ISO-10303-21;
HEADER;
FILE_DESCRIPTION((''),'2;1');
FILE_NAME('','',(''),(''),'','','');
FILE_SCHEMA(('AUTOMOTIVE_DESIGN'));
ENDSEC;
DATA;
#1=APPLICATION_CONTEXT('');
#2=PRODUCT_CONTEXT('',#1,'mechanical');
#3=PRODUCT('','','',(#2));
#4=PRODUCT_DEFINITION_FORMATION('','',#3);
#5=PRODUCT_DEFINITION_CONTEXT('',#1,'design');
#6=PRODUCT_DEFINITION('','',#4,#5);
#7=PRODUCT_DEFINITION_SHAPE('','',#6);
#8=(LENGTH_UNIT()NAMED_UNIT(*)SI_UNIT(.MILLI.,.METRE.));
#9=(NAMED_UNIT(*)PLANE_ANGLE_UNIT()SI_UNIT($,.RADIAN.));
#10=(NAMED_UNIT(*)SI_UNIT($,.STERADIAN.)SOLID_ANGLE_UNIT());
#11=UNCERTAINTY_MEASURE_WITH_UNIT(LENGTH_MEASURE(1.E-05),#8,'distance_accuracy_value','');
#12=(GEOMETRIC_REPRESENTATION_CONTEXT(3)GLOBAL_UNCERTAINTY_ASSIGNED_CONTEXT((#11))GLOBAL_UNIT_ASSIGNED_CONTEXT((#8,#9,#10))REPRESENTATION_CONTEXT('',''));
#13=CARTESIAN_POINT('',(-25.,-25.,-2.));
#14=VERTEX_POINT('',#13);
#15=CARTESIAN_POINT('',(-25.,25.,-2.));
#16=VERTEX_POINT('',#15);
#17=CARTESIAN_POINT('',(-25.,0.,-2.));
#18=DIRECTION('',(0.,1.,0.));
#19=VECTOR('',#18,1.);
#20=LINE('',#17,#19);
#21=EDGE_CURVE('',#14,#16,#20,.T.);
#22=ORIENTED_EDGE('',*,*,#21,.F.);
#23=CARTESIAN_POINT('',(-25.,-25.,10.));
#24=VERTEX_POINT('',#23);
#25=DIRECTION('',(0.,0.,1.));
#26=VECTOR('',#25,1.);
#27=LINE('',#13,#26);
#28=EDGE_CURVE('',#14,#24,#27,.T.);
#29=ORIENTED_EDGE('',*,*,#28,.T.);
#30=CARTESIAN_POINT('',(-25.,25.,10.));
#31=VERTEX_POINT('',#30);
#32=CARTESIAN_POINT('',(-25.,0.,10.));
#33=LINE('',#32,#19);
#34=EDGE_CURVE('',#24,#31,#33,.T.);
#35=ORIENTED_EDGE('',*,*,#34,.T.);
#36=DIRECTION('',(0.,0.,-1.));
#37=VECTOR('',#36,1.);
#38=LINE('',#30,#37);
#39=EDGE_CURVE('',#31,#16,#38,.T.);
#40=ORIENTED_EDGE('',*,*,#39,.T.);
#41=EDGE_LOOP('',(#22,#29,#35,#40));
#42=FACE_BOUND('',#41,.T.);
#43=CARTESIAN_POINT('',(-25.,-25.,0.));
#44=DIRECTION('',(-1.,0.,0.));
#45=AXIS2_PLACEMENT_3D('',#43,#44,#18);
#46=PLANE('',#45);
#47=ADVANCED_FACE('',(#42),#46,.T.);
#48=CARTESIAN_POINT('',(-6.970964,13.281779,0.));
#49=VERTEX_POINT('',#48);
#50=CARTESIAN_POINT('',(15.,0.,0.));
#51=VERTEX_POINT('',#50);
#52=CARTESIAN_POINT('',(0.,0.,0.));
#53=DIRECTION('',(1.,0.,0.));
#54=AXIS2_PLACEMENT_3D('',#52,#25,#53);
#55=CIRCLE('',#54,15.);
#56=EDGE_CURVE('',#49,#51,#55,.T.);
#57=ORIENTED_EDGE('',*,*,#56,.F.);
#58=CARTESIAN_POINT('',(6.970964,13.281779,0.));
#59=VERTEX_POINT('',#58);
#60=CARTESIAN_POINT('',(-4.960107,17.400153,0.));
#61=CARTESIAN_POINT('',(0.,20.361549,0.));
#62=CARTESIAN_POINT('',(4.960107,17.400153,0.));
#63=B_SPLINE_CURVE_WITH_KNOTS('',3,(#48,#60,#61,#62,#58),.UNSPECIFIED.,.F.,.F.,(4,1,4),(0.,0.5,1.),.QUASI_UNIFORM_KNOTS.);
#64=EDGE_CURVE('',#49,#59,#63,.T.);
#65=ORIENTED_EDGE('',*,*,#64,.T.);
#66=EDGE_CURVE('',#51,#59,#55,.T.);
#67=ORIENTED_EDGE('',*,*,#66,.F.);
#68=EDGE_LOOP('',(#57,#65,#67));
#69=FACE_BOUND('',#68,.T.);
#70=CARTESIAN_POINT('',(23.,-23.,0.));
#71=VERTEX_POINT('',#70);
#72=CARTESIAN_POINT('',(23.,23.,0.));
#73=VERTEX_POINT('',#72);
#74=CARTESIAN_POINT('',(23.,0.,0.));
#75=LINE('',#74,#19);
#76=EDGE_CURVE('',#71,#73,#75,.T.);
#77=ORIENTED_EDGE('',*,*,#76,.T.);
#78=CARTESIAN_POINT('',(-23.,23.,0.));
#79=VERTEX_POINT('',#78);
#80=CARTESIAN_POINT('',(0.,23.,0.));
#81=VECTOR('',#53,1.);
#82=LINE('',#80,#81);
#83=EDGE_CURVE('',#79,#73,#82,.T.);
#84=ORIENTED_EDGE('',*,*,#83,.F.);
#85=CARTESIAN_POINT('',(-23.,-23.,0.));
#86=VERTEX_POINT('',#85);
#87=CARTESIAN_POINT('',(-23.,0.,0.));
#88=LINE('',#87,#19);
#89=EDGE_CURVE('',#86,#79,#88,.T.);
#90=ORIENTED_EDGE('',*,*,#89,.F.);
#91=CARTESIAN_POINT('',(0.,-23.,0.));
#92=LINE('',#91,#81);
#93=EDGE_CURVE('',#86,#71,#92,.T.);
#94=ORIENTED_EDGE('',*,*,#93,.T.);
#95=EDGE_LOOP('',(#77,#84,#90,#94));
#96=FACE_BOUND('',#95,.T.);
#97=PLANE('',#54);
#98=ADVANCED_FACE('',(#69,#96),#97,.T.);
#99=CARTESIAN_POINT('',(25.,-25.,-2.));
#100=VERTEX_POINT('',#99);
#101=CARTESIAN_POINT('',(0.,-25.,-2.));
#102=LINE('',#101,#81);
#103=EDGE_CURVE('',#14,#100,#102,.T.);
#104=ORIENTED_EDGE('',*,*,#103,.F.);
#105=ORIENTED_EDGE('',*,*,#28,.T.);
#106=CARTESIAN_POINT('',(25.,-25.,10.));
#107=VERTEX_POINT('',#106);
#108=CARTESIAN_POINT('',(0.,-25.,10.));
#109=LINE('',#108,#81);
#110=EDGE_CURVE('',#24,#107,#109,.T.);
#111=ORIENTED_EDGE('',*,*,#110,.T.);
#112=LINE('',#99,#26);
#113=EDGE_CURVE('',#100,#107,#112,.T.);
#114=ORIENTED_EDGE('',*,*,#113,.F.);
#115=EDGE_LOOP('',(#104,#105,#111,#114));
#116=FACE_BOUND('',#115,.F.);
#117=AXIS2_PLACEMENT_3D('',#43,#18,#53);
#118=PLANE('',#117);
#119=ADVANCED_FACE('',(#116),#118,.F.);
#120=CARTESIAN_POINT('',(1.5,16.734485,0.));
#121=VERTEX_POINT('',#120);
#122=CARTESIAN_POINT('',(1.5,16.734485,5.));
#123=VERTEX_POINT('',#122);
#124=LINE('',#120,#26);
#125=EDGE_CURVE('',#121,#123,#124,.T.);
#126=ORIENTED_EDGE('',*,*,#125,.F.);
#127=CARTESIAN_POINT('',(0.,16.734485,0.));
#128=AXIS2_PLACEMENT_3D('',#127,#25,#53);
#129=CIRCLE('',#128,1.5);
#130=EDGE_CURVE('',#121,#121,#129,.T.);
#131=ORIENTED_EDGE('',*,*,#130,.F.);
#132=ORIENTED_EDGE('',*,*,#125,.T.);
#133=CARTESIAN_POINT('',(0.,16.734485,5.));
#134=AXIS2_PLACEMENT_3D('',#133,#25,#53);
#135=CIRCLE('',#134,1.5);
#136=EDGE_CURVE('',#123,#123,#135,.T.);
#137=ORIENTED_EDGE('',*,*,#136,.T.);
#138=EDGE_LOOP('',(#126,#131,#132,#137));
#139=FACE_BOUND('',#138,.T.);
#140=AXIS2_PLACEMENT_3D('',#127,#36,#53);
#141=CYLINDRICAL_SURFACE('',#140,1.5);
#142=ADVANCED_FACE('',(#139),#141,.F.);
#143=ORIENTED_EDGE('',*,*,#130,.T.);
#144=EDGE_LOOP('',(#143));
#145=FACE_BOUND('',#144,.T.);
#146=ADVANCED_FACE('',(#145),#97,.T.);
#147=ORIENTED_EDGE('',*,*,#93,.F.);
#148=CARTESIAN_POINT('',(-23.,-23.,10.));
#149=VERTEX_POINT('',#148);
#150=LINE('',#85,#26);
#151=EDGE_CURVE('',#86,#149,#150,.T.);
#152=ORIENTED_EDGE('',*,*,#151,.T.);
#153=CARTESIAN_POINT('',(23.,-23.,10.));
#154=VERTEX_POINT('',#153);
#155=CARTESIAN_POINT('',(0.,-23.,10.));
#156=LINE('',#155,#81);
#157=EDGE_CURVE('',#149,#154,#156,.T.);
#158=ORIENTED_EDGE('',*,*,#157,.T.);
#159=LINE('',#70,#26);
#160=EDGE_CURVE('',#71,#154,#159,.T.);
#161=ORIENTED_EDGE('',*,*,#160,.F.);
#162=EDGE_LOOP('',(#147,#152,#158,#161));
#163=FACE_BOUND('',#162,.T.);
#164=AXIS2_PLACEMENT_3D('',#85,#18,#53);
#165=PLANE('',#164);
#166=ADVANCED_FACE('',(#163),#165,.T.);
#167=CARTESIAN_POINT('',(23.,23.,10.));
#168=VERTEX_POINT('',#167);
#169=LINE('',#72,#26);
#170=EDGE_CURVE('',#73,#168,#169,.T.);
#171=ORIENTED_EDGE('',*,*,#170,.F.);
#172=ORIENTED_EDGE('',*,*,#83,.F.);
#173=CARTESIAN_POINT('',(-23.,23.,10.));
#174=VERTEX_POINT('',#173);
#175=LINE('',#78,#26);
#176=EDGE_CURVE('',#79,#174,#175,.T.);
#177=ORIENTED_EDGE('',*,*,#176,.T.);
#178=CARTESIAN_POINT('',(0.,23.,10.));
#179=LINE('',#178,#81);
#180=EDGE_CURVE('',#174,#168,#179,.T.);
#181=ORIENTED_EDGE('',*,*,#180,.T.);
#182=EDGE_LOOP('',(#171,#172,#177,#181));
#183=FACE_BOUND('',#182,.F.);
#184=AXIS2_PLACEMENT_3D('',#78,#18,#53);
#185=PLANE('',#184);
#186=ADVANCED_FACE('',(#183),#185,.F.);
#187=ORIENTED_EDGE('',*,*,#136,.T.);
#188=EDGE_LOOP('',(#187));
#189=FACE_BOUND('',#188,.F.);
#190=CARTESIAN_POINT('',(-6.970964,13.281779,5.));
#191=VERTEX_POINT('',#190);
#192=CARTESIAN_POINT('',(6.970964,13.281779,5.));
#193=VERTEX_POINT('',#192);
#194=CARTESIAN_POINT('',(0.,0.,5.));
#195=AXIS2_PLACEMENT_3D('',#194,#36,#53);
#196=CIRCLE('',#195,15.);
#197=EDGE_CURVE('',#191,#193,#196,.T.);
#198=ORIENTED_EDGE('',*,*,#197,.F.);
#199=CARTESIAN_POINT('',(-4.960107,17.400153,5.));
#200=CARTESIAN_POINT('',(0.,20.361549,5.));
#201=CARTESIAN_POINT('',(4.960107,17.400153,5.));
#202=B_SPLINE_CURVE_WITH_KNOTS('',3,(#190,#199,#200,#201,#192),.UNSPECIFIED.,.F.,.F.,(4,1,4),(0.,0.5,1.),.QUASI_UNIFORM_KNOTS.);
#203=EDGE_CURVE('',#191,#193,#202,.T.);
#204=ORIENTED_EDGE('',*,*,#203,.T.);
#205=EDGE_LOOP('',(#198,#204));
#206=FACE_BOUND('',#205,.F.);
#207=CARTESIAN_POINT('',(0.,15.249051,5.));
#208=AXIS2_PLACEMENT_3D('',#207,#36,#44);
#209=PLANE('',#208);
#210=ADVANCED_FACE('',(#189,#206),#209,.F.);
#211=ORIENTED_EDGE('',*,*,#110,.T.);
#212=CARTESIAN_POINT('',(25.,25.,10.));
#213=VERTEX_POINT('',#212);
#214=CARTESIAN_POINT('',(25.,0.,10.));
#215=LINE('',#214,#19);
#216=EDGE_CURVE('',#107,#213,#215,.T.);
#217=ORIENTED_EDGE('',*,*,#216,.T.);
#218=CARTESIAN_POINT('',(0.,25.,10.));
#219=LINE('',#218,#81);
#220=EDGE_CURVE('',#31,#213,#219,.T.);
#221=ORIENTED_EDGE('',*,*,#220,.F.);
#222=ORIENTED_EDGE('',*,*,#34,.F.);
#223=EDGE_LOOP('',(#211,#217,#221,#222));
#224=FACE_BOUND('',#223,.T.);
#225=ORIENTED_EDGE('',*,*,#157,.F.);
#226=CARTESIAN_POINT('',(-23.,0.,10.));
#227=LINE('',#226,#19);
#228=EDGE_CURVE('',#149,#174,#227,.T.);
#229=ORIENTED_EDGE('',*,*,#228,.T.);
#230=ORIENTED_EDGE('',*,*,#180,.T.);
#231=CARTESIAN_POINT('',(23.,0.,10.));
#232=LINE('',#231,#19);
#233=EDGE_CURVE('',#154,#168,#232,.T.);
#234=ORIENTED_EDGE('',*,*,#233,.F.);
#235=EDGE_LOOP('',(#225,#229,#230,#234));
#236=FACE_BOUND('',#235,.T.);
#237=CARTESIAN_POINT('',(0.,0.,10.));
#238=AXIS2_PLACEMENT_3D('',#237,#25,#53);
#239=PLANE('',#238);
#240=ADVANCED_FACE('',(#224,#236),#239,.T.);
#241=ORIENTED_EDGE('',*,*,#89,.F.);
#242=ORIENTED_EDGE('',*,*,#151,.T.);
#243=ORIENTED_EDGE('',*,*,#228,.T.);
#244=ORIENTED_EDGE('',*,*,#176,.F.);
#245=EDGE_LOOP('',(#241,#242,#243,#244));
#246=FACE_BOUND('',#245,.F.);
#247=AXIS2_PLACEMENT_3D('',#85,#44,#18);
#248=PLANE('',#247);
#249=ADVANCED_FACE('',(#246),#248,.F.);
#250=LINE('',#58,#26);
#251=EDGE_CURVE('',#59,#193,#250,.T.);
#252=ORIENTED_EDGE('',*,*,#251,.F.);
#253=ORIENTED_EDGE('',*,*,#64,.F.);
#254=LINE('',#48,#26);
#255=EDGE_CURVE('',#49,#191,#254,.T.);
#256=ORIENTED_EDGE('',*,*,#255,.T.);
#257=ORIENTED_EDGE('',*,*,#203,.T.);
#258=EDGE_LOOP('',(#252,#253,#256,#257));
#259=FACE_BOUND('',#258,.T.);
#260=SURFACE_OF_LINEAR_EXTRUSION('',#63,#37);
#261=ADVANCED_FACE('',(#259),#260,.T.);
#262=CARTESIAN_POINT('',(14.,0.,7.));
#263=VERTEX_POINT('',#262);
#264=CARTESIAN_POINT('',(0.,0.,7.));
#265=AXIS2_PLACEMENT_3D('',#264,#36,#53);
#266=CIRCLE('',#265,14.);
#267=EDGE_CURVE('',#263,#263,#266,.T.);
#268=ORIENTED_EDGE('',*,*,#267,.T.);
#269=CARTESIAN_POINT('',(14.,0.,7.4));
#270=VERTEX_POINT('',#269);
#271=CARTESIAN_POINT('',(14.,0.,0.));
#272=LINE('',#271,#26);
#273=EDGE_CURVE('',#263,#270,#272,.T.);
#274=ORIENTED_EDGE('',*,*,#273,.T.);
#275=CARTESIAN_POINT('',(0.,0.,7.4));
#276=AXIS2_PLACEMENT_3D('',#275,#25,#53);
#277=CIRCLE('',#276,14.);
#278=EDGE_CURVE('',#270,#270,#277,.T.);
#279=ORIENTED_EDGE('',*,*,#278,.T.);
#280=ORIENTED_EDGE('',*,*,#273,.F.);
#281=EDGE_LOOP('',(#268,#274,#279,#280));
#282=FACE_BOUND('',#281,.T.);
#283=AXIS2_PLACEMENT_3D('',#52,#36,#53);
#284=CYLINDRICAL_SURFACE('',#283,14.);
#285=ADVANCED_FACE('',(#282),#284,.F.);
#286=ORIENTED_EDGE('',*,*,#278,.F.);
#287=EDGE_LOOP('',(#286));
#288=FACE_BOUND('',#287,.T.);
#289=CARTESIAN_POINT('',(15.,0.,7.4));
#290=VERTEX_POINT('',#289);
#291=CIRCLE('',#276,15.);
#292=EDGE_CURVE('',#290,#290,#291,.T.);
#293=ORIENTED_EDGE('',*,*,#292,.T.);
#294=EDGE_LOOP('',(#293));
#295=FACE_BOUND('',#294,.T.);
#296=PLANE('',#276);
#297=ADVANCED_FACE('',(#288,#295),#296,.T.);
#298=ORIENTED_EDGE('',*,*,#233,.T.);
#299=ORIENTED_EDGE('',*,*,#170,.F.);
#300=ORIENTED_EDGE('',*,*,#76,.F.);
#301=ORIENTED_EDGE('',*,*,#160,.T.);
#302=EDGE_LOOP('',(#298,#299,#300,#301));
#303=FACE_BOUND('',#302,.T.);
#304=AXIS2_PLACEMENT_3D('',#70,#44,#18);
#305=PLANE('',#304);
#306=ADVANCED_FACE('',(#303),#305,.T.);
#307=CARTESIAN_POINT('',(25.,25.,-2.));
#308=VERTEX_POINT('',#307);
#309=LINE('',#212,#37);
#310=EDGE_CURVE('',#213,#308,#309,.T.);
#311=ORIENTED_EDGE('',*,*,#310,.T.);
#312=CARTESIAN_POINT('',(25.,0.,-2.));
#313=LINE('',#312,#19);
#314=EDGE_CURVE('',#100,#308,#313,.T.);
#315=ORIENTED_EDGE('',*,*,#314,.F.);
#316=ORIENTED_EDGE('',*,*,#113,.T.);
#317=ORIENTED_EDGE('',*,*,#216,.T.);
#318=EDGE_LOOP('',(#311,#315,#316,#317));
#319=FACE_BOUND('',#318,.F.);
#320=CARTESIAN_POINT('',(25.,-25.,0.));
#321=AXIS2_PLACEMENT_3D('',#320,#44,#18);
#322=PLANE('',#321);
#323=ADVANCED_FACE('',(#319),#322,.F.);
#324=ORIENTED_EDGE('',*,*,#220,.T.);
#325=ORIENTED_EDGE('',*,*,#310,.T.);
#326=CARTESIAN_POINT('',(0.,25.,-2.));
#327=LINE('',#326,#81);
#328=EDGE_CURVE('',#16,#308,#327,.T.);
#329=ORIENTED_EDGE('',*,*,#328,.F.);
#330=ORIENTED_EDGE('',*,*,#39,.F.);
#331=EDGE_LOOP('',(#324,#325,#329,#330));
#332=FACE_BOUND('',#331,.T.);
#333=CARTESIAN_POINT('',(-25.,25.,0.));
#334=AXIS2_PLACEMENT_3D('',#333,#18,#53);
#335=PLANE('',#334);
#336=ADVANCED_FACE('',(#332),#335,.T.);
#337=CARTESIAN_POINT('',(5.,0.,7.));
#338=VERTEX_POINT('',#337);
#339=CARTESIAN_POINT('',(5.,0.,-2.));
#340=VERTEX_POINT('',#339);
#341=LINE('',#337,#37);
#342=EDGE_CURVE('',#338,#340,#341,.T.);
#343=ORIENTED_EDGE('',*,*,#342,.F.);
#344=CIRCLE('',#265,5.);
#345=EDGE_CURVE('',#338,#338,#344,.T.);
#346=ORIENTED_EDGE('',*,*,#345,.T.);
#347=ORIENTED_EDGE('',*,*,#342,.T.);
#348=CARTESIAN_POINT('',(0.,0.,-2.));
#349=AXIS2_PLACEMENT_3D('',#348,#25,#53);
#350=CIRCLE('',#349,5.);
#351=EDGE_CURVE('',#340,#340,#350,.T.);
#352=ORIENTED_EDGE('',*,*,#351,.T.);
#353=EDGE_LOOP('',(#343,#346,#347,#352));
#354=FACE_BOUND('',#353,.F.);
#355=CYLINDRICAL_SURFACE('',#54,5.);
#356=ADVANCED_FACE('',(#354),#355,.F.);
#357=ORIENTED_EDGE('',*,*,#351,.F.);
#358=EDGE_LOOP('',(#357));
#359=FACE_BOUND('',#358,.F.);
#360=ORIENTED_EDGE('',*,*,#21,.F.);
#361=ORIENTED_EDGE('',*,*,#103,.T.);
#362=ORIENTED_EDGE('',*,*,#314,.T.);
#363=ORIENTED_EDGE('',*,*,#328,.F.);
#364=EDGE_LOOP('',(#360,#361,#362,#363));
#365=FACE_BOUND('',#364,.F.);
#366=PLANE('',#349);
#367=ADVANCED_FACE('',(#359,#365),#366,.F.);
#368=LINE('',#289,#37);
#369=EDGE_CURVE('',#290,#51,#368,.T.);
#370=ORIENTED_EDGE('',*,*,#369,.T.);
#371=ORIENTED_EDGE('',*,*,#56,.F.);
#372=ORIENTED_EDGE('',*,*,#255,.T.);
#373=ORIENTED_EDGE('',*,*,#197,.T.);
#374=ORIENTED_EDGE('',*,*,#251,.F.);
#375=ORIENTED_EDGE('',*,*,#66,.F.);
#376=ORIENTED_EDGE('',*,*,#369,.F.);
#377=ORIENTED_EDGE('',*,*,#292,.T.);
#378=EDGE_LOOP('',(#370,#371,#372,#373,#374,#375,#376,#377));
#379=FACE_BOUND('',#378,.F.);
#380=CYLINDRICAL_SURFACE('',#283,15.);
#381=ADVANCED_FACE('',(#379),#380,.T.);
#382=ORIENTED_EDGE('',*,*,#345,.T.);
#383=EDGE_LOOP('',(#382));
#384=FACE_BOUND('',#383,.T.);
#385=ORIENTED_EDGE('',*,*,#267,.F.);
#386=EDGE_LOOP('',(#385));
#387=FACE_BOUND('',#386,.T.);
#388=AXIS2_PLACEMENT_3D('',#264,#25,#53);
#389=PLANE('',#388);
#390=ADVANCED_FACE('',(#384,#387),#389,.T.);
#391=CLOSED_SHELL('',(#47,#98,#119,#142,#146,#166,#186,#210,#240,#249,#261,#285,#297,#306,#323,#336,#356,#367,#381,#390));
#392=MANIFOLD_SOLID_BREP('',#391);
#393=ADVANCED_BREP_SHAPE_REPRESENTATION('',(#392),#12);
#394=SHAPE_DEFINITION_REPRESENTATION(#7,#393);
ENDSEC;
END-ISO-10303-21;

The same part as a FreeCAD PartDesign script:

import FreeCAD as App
import Part
import Sketcher
Q = App.Units.Quantity


def add_polygon(sketch, points):
    """Adds a closed chain of lines whose ends are joined by coincident constraints."""
    first, n = sketch.GeometryCount, len(points)
    for a, b in zip(points, points[1:] + points[:1]):
        sketch.addGeometry(Part.LineSegment(App.Vector(*a, 0), App.Vector(*b, 0)), False)
    for i in range(n):
        sketch.addConstraint(Sketcher.Constraint("Coincident", first + i, 2, first + (i + 1) % n, 1))

doc = App.newDocument("Part")
body = doc.addObject("PartDesign::Body", "Body")

sketch1 = doc.addObject("Sketcher::SketchObject", "Sketch")
body.addObject(sketch1)
sketch1.AttachmentSupport = (doc.XY_Plane, [""])
sketch1.MapMode = "FlatFace"
sketch1.addGeometry(Part.Circle(App.Vector(0, 0, 0), App.Vector(0, 0, 1), 15), False)
sketch1.addConstraint([
    Sketcher.Constraint("Coincident", 0, 3, -1, 1),
    Sketcher.Constraint("Diameter", 0, Q("30 mm")),
])
pad1 = doc.addObject("PartDesign::Pad", "Pad")
body.addObject(pad1)
pad1.Profile = sketch1
pad1.Length = 7

sketch2 = doc.addObject("Sketcher::SketchObject", "Sketch001")
body.addObject(sketch2)
sketch2.AttachmentSupport = (doc.XY_Plane, [""])
sketch2.MapMode = "FlatFace"
sketch2.addGeometry([
    Part.BSplineCurve([App.Vector(-6.970964, 13.281779, 0), App.Vector(-4.960107, 17.400153, 0), App.Vector(0, 20.361549, 0), App.Vector(4.960107, 17.400153, 0), App.Vector(6.970964, 13.281779, 0)], [4, 1, 4], [0, 0.5, 1], False, 3, [1, 1, 1, 1, 1], False),
    Part.LineSegment(App.Vector(-6.970964, 13.281779, 0), App.Vector(6.970964, 13.281779, 0)),
    Part.Circle(App.Vector(0, 16.734485, 0), App.Vector(0, 0, 1), 1.5),
], False)
sketch2.addConstraint([
    Sketcher.Constraint("Block", 0),
    Sketcher.Constraint("Coincident", 0, 1, 1, 1),
    Sketcher.Constraint("Coincident", 1, 2, 0, 2),
    Sketcher.Constraint("PointOnObject", 2, 3, -2),
    Sketcher.Constraint("Diameter", 2, Q("3 mm")),
    Sketcher.Constraint("DistanceY", -1, 1, 2, 3, Q("16.734485 mm")),
])
pad2 = doc.addObject("PartDesign::Pad", "Pad001")
body.addObject(pad2)
pad2.Profile = sketch2
pad2.Length = 5

sketch3 = doc.addObject("Sketcher::SketchObject", "Sketch002")
body.addObject(sketch3)
sketch3.AttachmentSupport = (doc.XY_Plane, [""])
sketch3.MapMode = "FlatFace"
sketch3.addGeometry([
    Part.Circle(App.Vector(0, 0, 0), App.Vector(0, 0, 1), 15),
    Part.Circle(App.Vector(0, 0, 0), App.Vector(0, 0, 1), 14),
], False)
sketch3.addConstraint([
    Sketcher.Constraint("Coincident", 0, 3, -1, 1),
    Sketcher.Constraint("Coincident", 1, 3, -1, 1),
    Sketcher.Constraint("Diameter", 0, Q("30 mm")),
    Sketcher.Constraint("Diameter", 1, Q("28 mm")),
])
pad3 = doc.addObject("PartDesign::Pad", "Pad002")
body.addObject(pad3)
pad3.Profile = sketch3
pad3.Length = 7.4

sketch4 = doc.addObject("Sketcher::SketchObject", "Sketch003")
body.addObject(sketch4)
sketch4.AttachmentSupport = (doc.XY_Plane, [""])
sketch4.MapMode = "FlatFace"
add_polygon(sketch4, [(-25, 25), (-25, -25), (25, -25), (25, 25)])
sketch4.addConstraint([
    Sketcher.Constraint("Vertical", 0),
    Sketcher.Constraint("Horizontal", 1),
    Sketcher.Constraint("Vertical", 2),
    Sketcher.Constraint("Horizontal", 3),
    Sketcher.Constraint("Symmetric", 0, 2, 2, 2, -1, 1),
    Sketcher.Constraint("Equal", 3, 0),
    Sketcher.Constraint("DistanceX", 1, 1, 1, 2, Q("50 mm")),
])
pad4 = doc.addObject("PartDesign::Pad", "Pad003")
body.addObject(pad4)
pad4.Profile = sketch4
pad4.Length = 2
pad4.Reversed = True

sketch5 = doc.addObject("Sketcher::SketchObject", "Sketch004")
body.addObject(sketch5)
sketch5.AttachmentSupport = (doc.XY_Plane, [""])
sketch5.MapMode = "FlatFace"
add_polygon(sketch5, [(-25, 25), (-25, -25), (25, -25), (25, 25)])
add_polygon(sketch5, [(23, -23), (-23, -23), (-23, 23), (23, 23)])
sketch5.addConstraint([
    Sketcher.Constraint("Vertical", 0),
    Sketcher.Constraint("Horizontal", 1),
    Sketcher.Constraint("Vertical", 2),
    Sketcher.Constraint("Horizontal", 3),
    Sketcher.Constraint("Horizontal", 4),
    Sketcher.Constraint("Vertical", 5),
    Sketcher.Constraint("Horizontal", 6),
    Sketcher.Constraint("Vertical", 7),
    Sketcher.Constraint("Symmetric", 0, 2, 2, 2, -1, 1),
    Sketcher.Constraint("Symmetric", 4, 2, 6, 2, -1, 1),
    Sketcher.Constraint("Equal", 3, 0),
    Sketcher.Constraint("Equal", 6, 5),
    Sketcher.Constraint("DistanceX", 1, 1, 1, 2, Q("50 mm")),
    Sketcher.Constraint("DistanceX", 4, 2, 4, 1, Q("46 mm")),
])
pad5 = doc.addObject("PartDesign::Pad", "Pad004")
body.addObject(pad5)
pad5.Profile = sketch5
pad5.Length = 10

sketch6 = doc.addObject("Sketcher::SketchObject", "Sketch005")
body.addObject(sketch6)
sketch6.AttachmentSupport = (doc.XY_Plane, [""])
sketch6.MapMode = "FlatFace"
sketch6.addGeometry(Part.Circle(App.Vector(0, 0, 0), App.Vector(0, 0, 1), 5), False)
sketch6.addConstraint([
    Sketcher.Constraint("Coincident", 0, 3, -1, 1),
    Sketcher.Constraint("Diameter", 0, Q("10 mm")),
])
pocket1 = doc.addObject("PartDesign::Pocket", "Pocket")
body.addObject(pocket1)
pocket1.Profile = sketch6
pocket1.Type = "ThroughAll"
pocket1.Midplane = True

doc.recompute()
